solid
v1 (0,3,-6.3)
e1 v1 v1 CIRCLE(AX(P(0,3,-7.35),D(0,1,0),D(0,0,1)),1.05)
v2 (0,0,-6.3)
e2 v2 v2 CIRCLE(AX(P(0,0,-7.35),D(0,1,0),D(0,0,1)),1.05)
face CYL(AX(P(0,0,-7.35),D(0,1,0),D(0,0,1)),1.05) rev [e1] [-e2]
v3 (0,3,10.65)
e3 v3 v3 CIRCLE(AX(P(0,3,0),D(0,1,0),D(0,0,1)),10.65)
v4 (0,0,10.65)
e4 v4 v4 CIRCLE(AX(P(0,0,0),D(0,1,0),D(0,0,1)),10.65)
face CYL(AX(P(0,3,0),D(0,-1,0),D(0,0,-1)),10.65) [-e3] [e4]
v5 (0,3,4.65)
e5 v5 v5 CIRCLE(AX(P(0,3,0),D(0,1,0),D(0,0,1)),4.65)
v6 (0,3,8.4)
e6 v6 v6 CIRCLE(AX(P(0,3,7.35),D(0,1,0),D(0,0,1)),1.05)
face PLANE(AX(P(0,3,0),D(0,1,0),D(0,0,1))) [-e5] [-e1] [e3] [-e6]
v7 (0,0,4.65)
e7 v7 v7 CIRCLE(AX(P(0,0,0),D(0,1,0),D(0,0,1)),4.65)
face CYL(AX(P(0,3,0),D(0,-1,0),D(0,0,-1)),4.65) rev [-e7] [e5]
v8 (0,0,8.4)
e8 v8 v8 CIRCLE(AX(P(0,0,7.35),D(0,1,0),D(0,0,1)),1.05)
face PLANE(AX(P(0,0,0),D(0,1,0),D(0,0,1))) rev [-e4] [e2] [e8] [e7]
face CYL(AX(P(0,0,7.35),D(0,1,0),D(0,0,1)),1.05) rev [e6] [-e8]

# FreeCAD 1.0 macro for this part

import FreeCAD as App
import Part
import Sketcher
from FreeCAD import Vector
Q = App.Units.Quantity

doc = App.newDocument("Part")
body = doc.addObject("PartDesign::Body", "Body")

sketch1 = doc.addObject("Sketcher::SketchObject", "Sketch")
body.addObject(sketch1)
sketch1.AttachmentSupport = (doc.XZ_Plane, [""])
sketch1.MapMode = "FlatFace"
sketch1.addGeometry(Part.Circle(Vector(0, 0, 0), Vector(0, 0, 1), 10.7), False)
sketch1.addGeometry(Part.Circle(Vector(0, 0, 0), Vector(0, 0, 1), 4.7), False)
sketch1.addConstraint(Sketcher.Constraint("Coincident", 0, 3, -1, 1))
sketch1.addConstraint(Sketcher.Constraint("Coincident", 1, 3, -1, 1))
sketch1.addConstraint(Sketcher.Constraint("Diameter", 0, Q("21.3 mm")))
sketch1.addConstraint(Sketcher.Constraint("Diameter", 1, Q("9.3 mm")))
pad1 = doc.addObject("PartDesign::Pad", "Pad")
body.addObject(pad1)
pad1.Profile = sketch1
pad1.Length = 3
pad1.Reversed = True

sketch2 = doc.addObject("Sketcher::SketchObject", "Sketch001")
body.addObject(sketch2)
sketch2.AttachmentSupport = (doc.XZ_Plane, [""])
sketch2.MapMode = "FlatFace"
sketch2.AttachmentOffset = App.Placement(Vector(0, 0, -3), App.Rotation())
sketch2.addGeometry(Part.Circle(Vector(0, -7.3, 0), Vector(0, 0, 1), 1.1), False)
sketch2.addGeometry(Part.Circle(Vector(0, 7.3, 0), Vector(0, 0, 1), 1.1), False)
sketch2.addConstraint(Sketcher.Constraint("Equal", 0, 1))
sketch2.addConstraint(Sketcher.Constraint("Symmetric", 0, 3, 1, 3, -1, 1))
sketch2.addConstraint(Sketcher.Constraint("PointOnObject", 0, 3, -2))
sketch2.addConstraint(Sketcher.Constraint("Diameter", 0, Q("2.1 mm")))
sketch2.addConstraint(Sketcher.Constraint("DistanceY", 0, 3, 1, 3, Q("14.7 mm")))
pocket1 = doc.addObject("PartDesign::Pocket", "Pocket")
body.addObject(pocket1)
pocket1.Profile = sketch2
pocket1.Length = 3
pocket1.Reversed = True

doc.recompute()
